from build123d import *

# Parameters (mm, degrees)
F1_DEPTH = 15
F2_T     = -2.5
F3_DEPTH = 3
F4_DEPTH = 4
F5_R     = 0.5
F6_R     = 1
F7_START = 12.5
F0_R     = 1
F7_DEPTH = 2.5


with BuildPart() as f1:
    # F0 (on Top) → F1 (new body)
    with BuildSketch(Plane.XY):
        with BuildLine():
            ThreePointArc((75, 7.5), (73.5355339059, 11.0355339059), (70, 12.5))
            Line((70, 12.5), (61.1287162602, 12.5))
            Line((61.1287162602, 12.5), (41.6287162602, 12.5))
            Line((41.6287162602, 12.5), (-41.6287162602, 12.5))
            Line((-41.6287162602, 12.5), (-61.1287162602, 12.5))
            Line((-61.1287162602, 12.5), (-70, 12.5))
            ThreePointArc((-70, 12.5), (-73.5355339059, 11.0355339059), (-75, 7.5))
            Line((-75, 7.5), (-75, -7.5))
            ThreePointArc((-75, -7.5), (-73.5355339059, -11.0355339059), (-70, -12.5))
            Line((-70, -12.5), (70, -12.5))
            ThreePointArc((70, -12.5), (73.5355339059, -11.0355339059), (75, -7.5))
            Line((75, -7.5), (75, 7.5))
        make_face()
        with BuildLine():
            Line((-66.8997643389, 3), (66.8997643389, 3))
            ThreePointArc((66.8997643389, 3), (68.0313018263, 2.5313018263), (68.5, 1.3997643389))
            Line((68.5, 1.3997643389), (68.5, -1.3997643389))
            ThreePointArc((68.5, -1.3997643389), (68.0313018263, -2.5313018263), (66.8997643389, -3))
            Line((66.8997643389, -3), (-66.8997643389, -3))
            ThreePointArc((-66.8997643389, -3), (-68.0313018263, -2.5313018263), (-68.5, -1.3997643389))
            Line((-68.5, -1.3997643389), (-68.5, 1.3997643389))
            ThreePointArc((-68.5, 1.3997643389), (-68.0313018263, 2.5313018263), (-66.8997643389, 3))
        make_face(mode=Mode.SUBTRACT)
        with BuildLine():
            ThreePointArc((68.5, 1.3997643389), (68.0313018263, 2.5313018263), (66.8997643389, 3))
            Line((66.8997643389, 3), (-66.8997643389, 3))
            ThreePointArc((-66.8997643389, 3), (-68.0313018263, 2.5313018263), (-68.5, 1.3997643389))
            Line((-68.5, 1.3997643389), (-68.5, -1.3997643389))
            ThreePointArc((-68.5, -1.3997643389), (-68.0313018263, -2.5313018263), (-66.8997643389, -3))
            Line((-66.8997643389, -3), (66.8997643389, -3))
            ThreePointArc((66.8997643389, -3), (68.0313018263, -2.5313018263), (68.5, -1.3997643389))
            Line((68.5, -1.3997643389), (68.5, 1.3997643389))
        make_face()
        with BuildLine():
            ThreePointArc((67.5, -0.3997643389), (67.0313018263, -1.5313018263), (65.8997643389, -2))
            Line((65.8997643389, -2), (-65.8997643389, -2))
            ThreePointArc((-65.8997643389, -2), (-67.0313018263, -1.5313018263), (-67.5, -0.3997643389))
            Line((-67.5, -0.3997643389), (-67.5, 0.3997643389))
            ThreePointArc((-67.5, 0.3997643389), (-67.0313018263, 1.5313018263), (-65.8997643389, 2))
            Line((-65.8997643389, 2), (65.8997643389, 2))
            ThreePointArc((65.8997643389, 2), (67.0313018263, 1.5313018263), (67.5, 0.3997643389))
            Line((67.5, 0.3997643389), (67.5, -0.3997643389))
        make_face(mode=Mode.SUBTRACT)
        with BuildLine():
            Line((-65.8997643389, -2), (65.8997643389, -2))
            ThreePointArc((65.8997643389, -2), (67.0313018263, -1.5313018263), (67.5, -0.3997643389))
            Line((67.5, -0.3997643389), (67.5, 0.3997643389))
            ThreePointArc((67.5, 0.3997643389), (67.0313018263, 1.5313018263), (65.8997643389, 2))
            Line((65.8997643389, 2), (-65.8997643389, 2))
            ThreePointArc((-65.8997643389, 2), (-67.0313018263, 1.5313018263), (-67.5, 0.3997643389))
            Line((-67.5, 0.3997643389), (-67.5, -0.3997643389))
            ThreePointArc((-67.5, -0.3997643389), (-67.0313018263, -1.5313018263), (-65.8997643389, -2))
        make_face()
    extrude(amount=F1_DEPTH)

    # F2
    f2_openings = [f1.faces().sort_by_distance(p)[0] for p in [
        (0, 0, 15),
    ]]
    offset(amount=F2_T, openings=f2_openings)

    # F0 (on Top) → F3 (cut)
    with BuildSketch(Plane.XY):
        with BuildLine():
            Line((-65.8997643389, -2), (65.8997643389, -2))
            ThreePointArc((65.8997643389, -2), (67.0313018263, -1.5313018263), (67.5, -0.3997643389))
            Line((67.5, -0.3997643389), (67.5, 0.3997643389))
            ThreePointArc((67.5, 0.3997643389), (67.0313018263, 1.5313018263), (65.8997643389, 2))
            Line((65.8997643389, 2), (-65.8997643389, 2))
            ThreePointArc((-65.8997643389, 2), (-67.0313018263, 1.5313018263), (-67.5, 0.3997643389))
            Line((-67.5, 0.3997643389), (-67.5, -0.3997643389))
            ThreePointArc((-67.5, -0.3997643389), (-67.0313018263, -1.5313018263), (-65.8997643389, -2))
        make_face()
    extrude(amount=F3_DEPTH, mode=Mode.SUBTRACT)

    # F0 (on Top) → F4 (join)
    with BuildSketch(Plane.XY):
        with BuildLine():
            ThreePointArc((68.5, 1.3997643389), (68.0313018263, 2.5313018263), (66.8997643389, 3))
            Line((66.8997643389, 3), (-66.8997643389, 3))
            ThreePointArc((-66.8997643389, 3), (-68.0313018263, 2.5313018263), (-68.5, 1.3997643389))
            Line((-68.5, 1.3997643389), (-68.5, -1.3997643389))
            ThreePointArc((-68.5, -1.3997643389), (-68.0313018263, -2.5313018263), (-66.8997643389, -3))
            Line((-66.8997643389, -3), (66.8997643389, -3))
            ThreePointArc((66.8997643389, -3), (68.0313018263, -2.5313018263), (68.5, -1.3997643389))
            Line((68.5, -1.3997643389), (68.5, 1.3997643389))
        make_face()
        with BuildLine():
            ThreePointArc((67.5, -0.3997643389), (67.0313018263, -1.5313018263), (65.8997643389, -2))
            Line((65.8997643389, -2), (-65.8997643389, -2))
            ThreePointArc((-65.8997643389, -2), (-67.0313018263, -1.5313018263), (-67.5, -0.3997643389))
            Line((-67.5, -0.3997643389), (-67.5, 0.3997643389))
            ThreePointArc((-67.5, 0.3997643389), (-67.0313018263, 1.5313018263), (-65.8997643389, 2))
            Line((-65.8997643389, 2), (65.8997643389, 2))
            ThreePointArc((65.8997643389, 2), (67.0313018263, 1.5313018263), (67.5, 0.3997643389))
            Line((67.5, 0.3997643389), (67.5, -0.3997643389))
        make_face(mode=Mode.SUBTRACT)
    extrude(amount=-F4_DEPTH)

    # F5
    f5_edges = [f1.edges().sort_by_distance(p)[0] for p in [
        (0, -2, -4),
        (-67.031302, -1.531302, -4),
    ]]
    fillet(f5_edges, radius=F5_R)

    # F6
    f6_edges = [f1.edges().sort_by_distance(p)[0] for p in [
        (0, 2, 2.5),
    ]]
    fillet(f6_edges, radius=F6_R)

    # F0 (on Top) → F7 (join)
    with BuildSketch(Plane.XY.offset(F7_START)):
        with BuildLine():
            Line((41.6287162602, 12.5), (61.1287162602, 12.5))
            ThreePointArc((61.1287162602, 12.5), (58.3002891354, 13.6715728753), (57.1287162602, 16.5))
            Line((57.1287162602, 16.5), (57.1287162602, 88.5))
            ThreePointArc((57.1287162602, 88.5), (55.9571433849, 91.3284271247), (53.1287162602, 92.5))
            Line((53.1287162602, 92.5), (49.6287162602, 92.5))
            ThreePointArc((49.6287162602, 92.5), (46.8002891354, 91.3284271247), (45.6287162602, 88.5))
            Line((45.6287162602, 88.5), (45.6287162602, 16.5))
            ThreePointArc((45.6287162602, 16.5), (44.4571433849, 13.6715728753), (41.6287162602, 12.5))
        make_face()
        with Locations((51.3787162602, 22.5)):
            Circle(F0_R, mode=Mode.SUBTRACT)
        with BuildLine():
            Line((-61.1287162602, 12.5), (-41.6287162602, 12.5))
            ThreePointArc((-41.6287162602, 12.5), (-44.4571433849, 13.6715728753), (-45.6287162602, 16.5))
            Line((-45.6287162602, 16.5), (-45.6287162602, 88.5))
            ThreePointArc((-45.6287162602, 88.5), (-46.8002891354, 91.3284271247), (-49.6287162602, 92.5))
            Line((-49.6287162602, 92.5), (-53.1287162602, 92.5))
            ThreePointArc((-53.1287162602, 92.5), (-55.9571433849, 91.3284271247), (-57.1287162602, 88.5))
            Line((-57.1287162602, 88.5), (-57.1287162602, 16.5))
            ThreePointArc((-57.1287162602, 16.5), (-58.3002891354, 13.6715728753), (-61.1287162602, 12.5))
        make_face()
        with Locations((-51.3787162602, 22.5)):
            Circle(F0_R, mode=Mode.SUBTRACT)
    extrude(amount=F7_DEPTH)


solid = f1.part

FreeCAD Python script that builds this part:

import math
import FreeCAD as App
import Part
import Sketcher
from FreeCAD import Vector


def edges_at(feature, points):
    """Names of the edges that pass closest to the given points."""
    edges = feature.Shape.Edges
    near = lambda p: min(range(len(edges)), key=lambda i: edges[i].distToShape(Part.Vertex(*p))[0])
    return sorted({f"Edge{near(p) + 1}" for p in points})


def faces_at(feature, points):
    """Names of the faces that lie closest to the given points."""
    faces = feature.Shape.Faces
    near = lambda p: min(range(len(faces)), key=lambda i: faces[i].distToShape(Part.Vertex(*p))[0])
    return sorted({f"Face{near(p) + 1}" for p in points})

doc = App.newDocument("Part")
body = doc.addObject("PartDesign::Body", "Body")

sketch1 = body.newObject("Sketcher::SketchObject", "Sketch")
sketch1.AttachmentSupport = (doc.getObject("XY_Plane"), [""])
sketch1.MapMode = "FlatFace"
sketch1.addGeometry(Part.ArcOfCircle(Part.Circle(Vector(70, 7.5, 0), Vector(0, 0, 1), 5), math.radians(0), math.radians(90)), False)
sketch1.addGeometry(Part.LineSegment(Vector(70, 12.5, 0), Vector(-70, 12.5, 0)), False)
sketch1.addGeometry(Part.ArcOfCircle(Part.Circle(Vector(-70, 7.5, 0), Vector(0, 0, 1), 5), math.radians(90), math.radians(180)), False)
sketch1.addGeometry(Part.LineSegment(Vector(-75, 7.5, 0), Vector(-75, -7.5, 0)), False)
sketch1.addGeometry(Part.ArcOfCircle(Part.Circle(Vector(-70, -7.5, 0), Vector(0, 0, 1), 5), math.radians(180), math.radians(270)), False)
sketch1.addGeometry(Part.LineSegment(Vector(-70, -12.5, 0), Vector(70, -12.5, 0)), False)
sketch1.addGeometry(Part.ArcOfCircle(Part.Circle(Vector(70, -7.5, 0), Vector(0, 0, 1), 5), math.radians(-90), math.radians(0)), False)
sketch1.addGeometry(Part.LineSegment(Vector(75, -7.5, 0), Vector(75, 7.5, 0)), False)
sketch1.addConstraint(Sketcher.Constraint("Tangent", 0, 2, 1, 1))
sketch1.addConstraint(Sketcher.Constraint("Tangent", 1, 2, 2, 1))
sketch1.addConstraint(Sketcher.Constraint("Tangent", 2, 2, 3, 1))
sketch1.addConstraint(Sketcher.Constraint("Tangent", 3, 2, 4, 1))
sketch1.addConstraint(Sketcher.Constraint("Tangent", 4, 2, 5, 1))
sketch1.addConstraint(Sketcher.Constraint("Tangent", 5, 2, 6, 1))
sketch1.addConstraint(Sketcher.Constraint("Tangent", 6, 2, 7, 1))
sketch1.addConstraint(Sketcher.Constraint("Tangent", 7, 2, 0, 1))
sketch1.addConstraint(Sketcher.Constraint("Horizontal", 1))
sketch1.addConstraint(Sketcher.Constraint("Vertical", 3))
sketch1.addConstraint(Sketcher.Constraint("Horizontal", 5))
sketch1.addConstraint(Sketcher.Constraint("Vertical", 7))
sketch1.addConstraint(Sketcher.Constraint("Equal", 0, 2))
sketch1.addConstraint(Sketcher.Constraint("Equal", 2, 4))
sketch1.addConstraint(Sketcher.Constraint("Equal", 4, 6))
sketch1.addConstraint(Sketcher.Constraint("Symmetric", 0, 3, 4, 3, -1, 1))
sketch1.addConstraint(Sketcher.Constraint("Radius", 0, 5.0))
sketch1.addConstraint(Sketcher.Constraint("DistanceX", 1, 2, 1, 1, 140.0))
sketch1.addConstraint(Sketcher.Constraint("DistanceY", 3, 2, 3, 1, 15.0))
pad1 = body.newObject("PartDesign::Pad", "Pad")
pad1.Profile = sketch1
pad1.Length = 15
doc.recompute()

thickness = body.newObject("PartDesign::Thickness", "Thickness")
thickness.Base = (pad1, faces_at(pad1, [(0, 0, 15)]))
thickness.Value = 2.5
thickness.Reversed = True
thickness.Join = "Arc"

sketch2 = body.newObject("Sketcher::SketchObject", "Sketch001")
sketch2.AttachmentSupport = (doc.getObject("XY_Plane"), [""])
sketch2.MapMode = "FlatFace"
sketch2.addGeometry(Part.LineSegment(Vector(-65.899764, -2, 0), Vector(65.899764, -2, 0)), False)
sketch2.addGeometry(Part.ArcOfCircle(Part.Circle(Vector(65.899764, -0.399764, 0), Vector(0, 0, 1), 1.600236), math.radians(-90), math.radians(0)), False)
sketch2.addGeometry(Part.LineSegment(Vector(67.5, -0.399764, 0), Vector(67.5, 0.399764, 0)), False)
sketch2.addGeometry(Part.ArcOfCircle(Part.Circle(Vector(65.899764, 0.399764, 0), Vector(0, 0, 1), 1.600236), math.radians(0), math.radians(90)), False)
sketch2.addGeometry(Part.LineSegment(Vector(65.899764, 2, 0), Vector(-65.899764, 2, 0)), False)
sketch2.addGeometry(Part.ArcOfCircle(Part.Circle(Vector(-65.899764, 0.399764, 0), Vector(0, 0, 1), 1.600236), math.radians(90), math.radians(180)), False)
sketch2.addGeometry(Part.LineSegment(Vector(-67.5, 0.399764, 0), Vector(-67.5, -0.399764, 0)), False)
sketch2.addGeometry(Part.ArcOfCircle(Part.Circle(Vector(-65.899764, -0.399764, 0), Vector(0, 0, 1), 1.600236), math.radians(180), math.radians(270)), False)
sketch2.addConstraint(Sketcher.Constraint("Tangent", 0, 2, 1, 1))
sketch2.addConstraint(Sketcher.Constraint("Tangent", 1, 2, 2, 1))
sketch2.addConstraint(Sketcher.Constraint("Tangent", 2, 2, 3, 1))
sketch2.addConstraint(Sketcher.Constraint("Tangent", 3, 2, 4, 1))
sketch2.addConstraint(Sketcher.Constraint("Tangent", 4, 2, 5, 1))
sketch2.addConstraint(Sketcher.Constraint("Tangent", 5, 2, 6, 1))
sketch2.addConstraint(Sketcher.Constraint("Tangent", 6, 2, 7, 1))
sketch2.addConstraint(Sketcher.Constraint("Tangent", 7, 2, 0, 1))
sketch2.addConstraint(Sketcher.Constraint("Horizontal", 0))
sketch2.addConstraint(Sketcher.Constraint("Vertical", 2))
sketch2.addConstraint(Sketcher.Constraint("Horizontal", 4))
sketch2.addConstraint(Sketcher.Constraint("Vertical", 6))
sketch2.addConstraint(Sketcher.Constraint("Equal", 1, 3))
sketch2.addConstraint(Sketcher.Constraint("Equal", 3, 5))
sketch2.addConstraint(Sketcher.Constraint("Equal", 5, 7))
sketch2.addConstraint(Sketcher.Constraint("Symmetric", 1, 3, 5, 3, -1, 1))
sketch2.addConstraint(Sketcher.Constraint("DistanceY", 0, 2, -1, 1, 2.0))
sketch2.addConstraint(Sketcher.Constraint("DistanceX", -1, 1, 1, 2, 67.5))
sketch2.addConstraint(Sketcher.Constraint("Radius", 1, 1.600236))
pocket1 = body.newObject("PartDesign::Pocket", "Pocket")
pocket1.Profile = sketch2
pocket1.Length = 3
pocket1.Reversed = True

sketch3 = body.newObject("Sketcher::SketchObject", "Sketch002")
sketch3.AttachmentSupport = (doc.getObject("XY_Plane"), [""])
sketch3.MapMode = "FlatFace"
sketch3.addGeometry(Part.ArcOfCircle(Part.Circle(Vector(66.899764, 1.399764, 0), Vector(0, 0, 1), 1.600236), math.radians(0), math.radians(90)), False)
sketch3.addGeometry(Part.LineSegment(Vector(66.899764, 3, 0), Vector(-66.899764, 3, 0)), False)
sketch3.addGeometry(Part.ArcOfCircle(Part.Circle(Vector(-66.899764, 1.399764, 0), Vector(0, 0, 1), 1.600236), math.radians(90), math.radians(180)), False)
sketch3.addGeometry(Part.LineSegment(Vector(-68.5, 1.399764, 0), Vector(-68.5, -1.399764, 0)), False)
sketch3.addGeometry(Part.ArcOfCircle(Part.Circle(Vector(-66.899764, -1.399764, 0), Vector(0, 0, 1), 1.600236), math.radians(180), math.radians(270)), False)
sketch3.addGeometry(Part.LineSegment(Vector(-66.899764, -3, 0), Vector(66.899764, -3, 0)), False)
sketch3.addGeometry(Part.ArcOfCircle(Part.Circle(Vector(66.899764, -1.399764, 0), Vector(0, 0, 1), 1.600236), math.radians(-90), math.radians(0)), False)
sketch3.addGeometry(Part.LineSegment(Vector(68.5, -1.399764, 0), Vector(68.5, 1.399764, 0)), False)
sketch3.addGeometry(Part.LineSegment(Vector(67.5, 0.399764, 0), Vector(67.5, -0.399764, 0)), False)
sketch3.addGeometry(Part.ArcOfCircle(Part.Circle(Vector(65.899764, -0.399764, 0), Vector(0, 0, 1), 1.600236), math.radians(-90), math.radians(0)), False)
sketch3.addGeometry(Part.LineSegment(Vector(65.899764, -2, 0), Vector(-65.899764, -2, 0)), False)
sketch3.addGeometry(Part.ArcOfCircle(Part.Circle(Vector(-65.899764, -0.399764, 0), Vector(0, 0, 1), 1.600236), math.radians(180), math.radians(270)), False)
sketch3.addGeometry(Part.LineSegment(Vector(-67.5, -0.399764, 0), Vector(-67.5, 0.399764, 0)), False)
sketch3.addGeometry(Part.ArcOfCircle(Part.Circle(Vector(-65.899764, 0.399764, 0), Vector(0, 0, 1), 1.600236), math.radians(90), math.radians(180)), False)
sketch3.addGeometry(Part.LineSegment(Vector(-65.899764, 2, 0), Vector(65.899764, 2, 0)), False)
sketch3.addGeometry(Part.ArcOfCircle(Part.Circle(Vector(65.899764, 0.399764, 0), Vector(0, 0, 1), 1.600236), math.radians(0), math.radians(90)), False)
sketch3.addConstraint(Sketcher.Constraint("Tangent", 0, 2, 1, 1))
sketch3.addConstraint(Sketcher.Constraint("Tangent", 1, 2, 2, 1))
sketch3.addConstraint(Sketcher.Constraint("Tangent", 2, 2, 3, 1))
sketch3.addConstraint(Sketcher.Constraint("Tangent", 3, 2, 4, 1))
sketch3.addConstraint(Sketcher.Constraint("Tangent", 4, 2, 5, 1))
sketch3.addConstraint(Sketcher.Constraint("Tangent", 5, 2, 6, 1))
sketch3.addConstraint(Sketcher.Constraint("Tangent", 6, 2, 7, 1))
sketch3.addConstraint(Sketcher.Constraint("Tangent", 7, 2, 0, 1))
sketch3.addConstraint(Sketcher.Constraint("Tangent", 8, 2, 9, 2))
sketch3.addConstraint(Sketcher.Constraint("Tangent", 9, 1, 10, 1))
sketch3.addConstraint(Sketcher.Constraint("Tangent", 10, 2, 11, 2))
sketch3.addConstraint(Sketcher.Constraint("Tangent", 11, 1, 12, 1))
sketch3.addConstraint(Sketcher.Constraint("Tangent", 12, 2, 13, 2))
sketch3.addConstraint(Sketcher.Constraint("Tangent", 13, 1, 14, 1))
sketch3.addConstraint(Sketcher.Constraint("Tangent", 14, 2, 15, 2))
sketch3.addConstraint(Sketcher.Constraint("Tangent", 15, 1, 8, 1))
sketch3.addConstraint(Sketcher.Constraint("Horizontal", 1))
sketch3.addConstraint(Sketcher.Constraint("Vertical", 3))
sketch3.addConstraint(Sketcher.Constraint("Horizontal", 5))
sketch3.addConstraint(Sketcher.Constraint("Vertical", 7))
sketch3.addConstraint(Sketcher.Constraint("Vertical", 8))
sketch3.addConstraint(Sketcher.Constraint("Horizontal", 10))
sketch3.addConstraint(Sketcher.Constraint("Vertical", 12))
sketch3.addConstraint(Sketcher.Constraint("Horizontal", 14))
sketch3.addConstraint(Sketcher.Constraint("Equal", 0, 2))
sketch3.addConstraint(Sketcher.Constraint("Equal", 2, 4))
sketch3.addConstraint(Sketcher.Constraint("Equal", 4, 6))
sketch3.addConstraint(Sketcher.Constraint("Equal", 6, 9))
sketch3.addConstraint(Sketcher.Constraint("Equal", 9, 11))
sketch3.addConstraint(Sketcher.Constraint("Equal", 11, 13))
sketch3.addConstraint(Sketcher.Constraint("Equal", 13, 15))
sketch3.addConstraint(Sketcher.Constraint("Symmetric", 0, 3, 4, 3, -1, 1))
sketch3.addConstraint(Sketcher.Constraint("Symmetric", 9, 3, 13, 3, -1, 1))
sketch3.addConstraint(Sketcher.Constraint("DistanceY", -1, 1, 0, 2, 3.0))
sketch3.addConstraint(Sketcher.Constraint("DistanceY", 9, 1, -1, 1, 2.0))
sketch3.addConstraint(Sketcher.Constraint("DistanceX", 9, 3, 6, 3, 1.0))
sketch3.addConstraint(Sketcher.Constraint("DistanceX", 2, 2, -1, 1, 68.5))
sketch3.addConstraint(Sketcher.Constraint("Radius", 0, 1.600236))
pad2 = body.newObject("PartDesign::Pad", "Pad001")
pad2.Profile = sketch3
pad2.Length = 4
pad2.Reversed = True
doc.recompute()

fillet = body.newObject("PartDesign::Fillet", "Fillet")
fillet.Base = (pad2, edges_at(pad2, [(0, -2, -4), (-67.031, -1.531, -4)]))
fillet.Radius = 0.5
doc.recompute()

fillet2 = body.newObject("PartDesign::Fillet", "Fillet001")
fillet2.Base = (fillet, edges_at(fillet, [(0, 2, 2.5)]))
fillet2.Radius = 1

sketch4 = body.newObject("Sketcher::SketchObject", "Sketch003")
sketch4.AttachmentSupport = (doc.getObject("XY_Plane"), [""])
sketch4.MapMode = "FlatFace"
sketch4.AttachmentOffset = App.Placement(Vector(0, 0, 12.5), App.Rotation())
sketch4.addGeometry(Part.LineSegment(Vector(41.628716, 12.5, 0), Vector(61.128716, 12.5, 0)), False)
sketch4.addGeometry(Part.ArcOfCircle(Part.Circle(Vector(61.128716, 16.5, 0), Vector(0, 0, 1), 4), math.radians(180), math.radians(270)), False)
sketch4.addGeometry(Part.LineSegment(Vector(57.128716, 16.5, 0), Vector(57.128716, 88.5, 0)), False)
sketch4.addGeometry(Part.ArcOfCircle(Part.Circle(Vector(53.128716, 88.5, 0), Vector(0, 0, 1), 4), math.radians(0), math.radians(90)), False)
sketch4.addGeometry(Part.LineSegment(Vector(53.128716, 92.5, 0), Vector(49.628716, 92.5, 0)), False)
sketch4.addGeometry(Part.ArcOfCircle(Part.Circle(Vector(49.628716, 88.5, 0), Vector(0, 0, 1), 4), math.radians(90), math.radians(180)), False)
sketch4.addGeometry(Part.LineSegment(Vector(45.628716, 88.5, 0), Vector(45.628716, 16.5, 0)), False)
sketch4.addGeometry(Part.ArcOfCircle(Part.Circle(Vector(41.628716, 16.5, 0), Vector(0, 0, 1), 4), math.radians(-90), math.radians(0)), False)
sketch4.addGeometry(Part.Circle(Vector(51.378716, 22.5, 0), Vector(0, 0, 1), 1), False)
sketch4.addGeometry(Part.LineSegment(Vector(-61.128716, 12.5, 0), Vector(-41.628716, 12.5, 0)), False)
sketch4.addGeometry(Part.ArcOfCircle(Part.Circle(Vector(-41.628716, 16.5, 0), Vector(0, 0, 1), 4), math.radians(180), math.radians(270)), False)
sketch4.addGeometry(Part.LineSegment(Vector(-45.628716, 16.5, 0), Vector(-45.628716, 88.5, 0)), False)
sketch4.addGeometry(Part.ArcOfCircle(Part.Circle(Vector(-49.628716, 88.5, 0), Vector(0, 0, 1), 4), math.radians(0), math.radians(90)), False)
sketch4.addGeometry(Part.LineSegment(Vector(-49.628716, 92.5, 0), Vector(-53.128716, 92.5, 0)), False)
sketch4.addGeometry(Part.ArcOfCircle(Part.Circle(Vector(-53.128716, 88.5, 0), Vector(0, 0, 1), 4), math.radians(90), math.radians(180)), False)
sketch4.addGeometry(Part.LineSegment(Vector(-57.128716, 88.5, 0), Vector(-57.128716, 16.5, 0)), False)
sketch4.addGeometry(Part.ArcOfCircle(Part.Circle(Vector(-61.128716, 16.5, 0), Vector(0, 0, 1), 4), math.radians(-90), math.radians(0)), False)
sketch4.addGeometry(Part.Circle(Vector(-51.378716, 22.5, 0), Vector(0, 0, 1), 1), False)
sketch4.addConstraint(Sketcher.Constraint("Tangent", 0, 2, 1, 2))
sketch4.addConstraint(Sketcher.Constraint("Tangent", 1, 1, 2, 1))
sketch4.addConstraint(Sketcher.Constraint("Tangent", 2, 2, 3, 1))
sketch4.addConstraint(Sketcher.Constraint("Tangent", 3, 2, 4, 1))
sketch4.addConstraint(Sketcher.Constraint("Tangent", 4, 2, 5, 1))
sketch4.addConstraint(Sketcher.Constraint("Tangent", 5, 2, 6, 1))
sketch4.addConstraint(Sketcher.Constraint("Tangent", 6, 2, 7, 2))
sketch4.addConstraint(Sketcher.Constraint("Tangent", 7, 1, 0, 1))
sketch4.addConstraint(Sketcher.Constraint("Tangent", 9, 2, 10, 2))
sketch4.addConstraint(Sketcher.Constraint("Tangent", 10, 1, 11, 1))
sketch4.addConstraint(Sketcher.Constraint("Tangent", 11, 2, 12, 1))
sketch4.addConstraint(Sketcher.Constraint("Tangent", 12, 2, 13, 1))
sketch4.addConstraint(Sketcher.Constraint("Tangent", 13, 2, 14, 1))
sketch4.addConstraint(Sketcher.Constraint("Tangent", 14, 2, 15, 1))
sketch4.addConstraint(Sketcher.Constraint("Tangent", 15, 2, 16, 2))
sketch4.addConstraint(Sketcher.Constraint("Tangent", 16, 1, 9, 1))
sketch4.addConstraint(Sketcher.Constraint("Horizontal", 0))
sketch4.addConstraint(Sketcher.Constraint("Vertical", 2))
sketch4.addConstraint(Sketcher.Constraint("Horizontal", 4))
sketch4.addConstraint(Sketcher.Constraint("Vertical", 6))
sketch4.addConstraint(Sketcher.Constraint("Horizontal", 9))
sketch4.addConstraint(Sketcher.Constraint("Vertical", 11))
sketch4.addConstraint(Sketcher.Constraint("Horizontal", 13))
sketch4.addConstraint(Sketcher.Constraint("Vertical", 15))
sketch4.addConstraint(Sketcher.Constraint("Equal", 1, 3))
sketch4.addConstraint(Sketcher.Constraint("Equal", 3, 5))
sketch4.addConstraint(Sketcher.Constraint("Equal", 5, 7))
sketch4.addConstraint(Sketcher.Constraint("Equal", 7, 10))
sketch4.addConstraint(Sketcher.Constraint("Equal", 10, 12))
sketch4.addConstraint(Sketcher.Constraint("Equal", 12, 14))
sketch4.addConstraint(Sketcher.Constraint("Equal", 14, 16))
sketch4.addConstraint(Sketcher.Constraint("Equal", 8, 17))
sketch4.addConstraint(Sketcher.Constraint("Symmetric", 7, 3, 10, 3, -2))
sketch4.addConstraint(Sketcher.Constraint("Symmetric", 3, 3, 14, 3, -2))
sketch4.addConstraint(Sketcher.Constraint("Symmetric", 8, 3, 17, 3, -2))
sketch4.addConstraint(Sketcher.Constraint("Diameter", 8, 2.0))
sketch4.addConstraint(Sketcher.Constraint("Radius", 1, 4.0))
sketch4.addConstraint(Sketcher.Constraint("DistanceY", 2, 1, 2, 2, 72.0))
sketch4.addConstraint(Sketcher.Constraint("DistanceX", 0, 1, 0, 2, 19.5))
sketch4.addConstraint(Sketcher.Constraint("DistanceY", 1, 3, 8, 3, 6.0))
sketch4.addConstraint(Sketcher.Constraint("DistanceY", -1, 1, 1, 3, 16.5))
sketch4.addConstraint(Sketcher.Constraint("DistanceX", 8, 3, 1, 3, 9.75))
sketch4.addConstraint(Sketcher.Constraint("DistanceX", -1, 1, 1, 3, 61.128716))
pad3 = body.newObject("PartDesign::Pad", "Pad002")
pad3.Profile = sketch4
pad3.Length = 2.5

doc.recompute()
